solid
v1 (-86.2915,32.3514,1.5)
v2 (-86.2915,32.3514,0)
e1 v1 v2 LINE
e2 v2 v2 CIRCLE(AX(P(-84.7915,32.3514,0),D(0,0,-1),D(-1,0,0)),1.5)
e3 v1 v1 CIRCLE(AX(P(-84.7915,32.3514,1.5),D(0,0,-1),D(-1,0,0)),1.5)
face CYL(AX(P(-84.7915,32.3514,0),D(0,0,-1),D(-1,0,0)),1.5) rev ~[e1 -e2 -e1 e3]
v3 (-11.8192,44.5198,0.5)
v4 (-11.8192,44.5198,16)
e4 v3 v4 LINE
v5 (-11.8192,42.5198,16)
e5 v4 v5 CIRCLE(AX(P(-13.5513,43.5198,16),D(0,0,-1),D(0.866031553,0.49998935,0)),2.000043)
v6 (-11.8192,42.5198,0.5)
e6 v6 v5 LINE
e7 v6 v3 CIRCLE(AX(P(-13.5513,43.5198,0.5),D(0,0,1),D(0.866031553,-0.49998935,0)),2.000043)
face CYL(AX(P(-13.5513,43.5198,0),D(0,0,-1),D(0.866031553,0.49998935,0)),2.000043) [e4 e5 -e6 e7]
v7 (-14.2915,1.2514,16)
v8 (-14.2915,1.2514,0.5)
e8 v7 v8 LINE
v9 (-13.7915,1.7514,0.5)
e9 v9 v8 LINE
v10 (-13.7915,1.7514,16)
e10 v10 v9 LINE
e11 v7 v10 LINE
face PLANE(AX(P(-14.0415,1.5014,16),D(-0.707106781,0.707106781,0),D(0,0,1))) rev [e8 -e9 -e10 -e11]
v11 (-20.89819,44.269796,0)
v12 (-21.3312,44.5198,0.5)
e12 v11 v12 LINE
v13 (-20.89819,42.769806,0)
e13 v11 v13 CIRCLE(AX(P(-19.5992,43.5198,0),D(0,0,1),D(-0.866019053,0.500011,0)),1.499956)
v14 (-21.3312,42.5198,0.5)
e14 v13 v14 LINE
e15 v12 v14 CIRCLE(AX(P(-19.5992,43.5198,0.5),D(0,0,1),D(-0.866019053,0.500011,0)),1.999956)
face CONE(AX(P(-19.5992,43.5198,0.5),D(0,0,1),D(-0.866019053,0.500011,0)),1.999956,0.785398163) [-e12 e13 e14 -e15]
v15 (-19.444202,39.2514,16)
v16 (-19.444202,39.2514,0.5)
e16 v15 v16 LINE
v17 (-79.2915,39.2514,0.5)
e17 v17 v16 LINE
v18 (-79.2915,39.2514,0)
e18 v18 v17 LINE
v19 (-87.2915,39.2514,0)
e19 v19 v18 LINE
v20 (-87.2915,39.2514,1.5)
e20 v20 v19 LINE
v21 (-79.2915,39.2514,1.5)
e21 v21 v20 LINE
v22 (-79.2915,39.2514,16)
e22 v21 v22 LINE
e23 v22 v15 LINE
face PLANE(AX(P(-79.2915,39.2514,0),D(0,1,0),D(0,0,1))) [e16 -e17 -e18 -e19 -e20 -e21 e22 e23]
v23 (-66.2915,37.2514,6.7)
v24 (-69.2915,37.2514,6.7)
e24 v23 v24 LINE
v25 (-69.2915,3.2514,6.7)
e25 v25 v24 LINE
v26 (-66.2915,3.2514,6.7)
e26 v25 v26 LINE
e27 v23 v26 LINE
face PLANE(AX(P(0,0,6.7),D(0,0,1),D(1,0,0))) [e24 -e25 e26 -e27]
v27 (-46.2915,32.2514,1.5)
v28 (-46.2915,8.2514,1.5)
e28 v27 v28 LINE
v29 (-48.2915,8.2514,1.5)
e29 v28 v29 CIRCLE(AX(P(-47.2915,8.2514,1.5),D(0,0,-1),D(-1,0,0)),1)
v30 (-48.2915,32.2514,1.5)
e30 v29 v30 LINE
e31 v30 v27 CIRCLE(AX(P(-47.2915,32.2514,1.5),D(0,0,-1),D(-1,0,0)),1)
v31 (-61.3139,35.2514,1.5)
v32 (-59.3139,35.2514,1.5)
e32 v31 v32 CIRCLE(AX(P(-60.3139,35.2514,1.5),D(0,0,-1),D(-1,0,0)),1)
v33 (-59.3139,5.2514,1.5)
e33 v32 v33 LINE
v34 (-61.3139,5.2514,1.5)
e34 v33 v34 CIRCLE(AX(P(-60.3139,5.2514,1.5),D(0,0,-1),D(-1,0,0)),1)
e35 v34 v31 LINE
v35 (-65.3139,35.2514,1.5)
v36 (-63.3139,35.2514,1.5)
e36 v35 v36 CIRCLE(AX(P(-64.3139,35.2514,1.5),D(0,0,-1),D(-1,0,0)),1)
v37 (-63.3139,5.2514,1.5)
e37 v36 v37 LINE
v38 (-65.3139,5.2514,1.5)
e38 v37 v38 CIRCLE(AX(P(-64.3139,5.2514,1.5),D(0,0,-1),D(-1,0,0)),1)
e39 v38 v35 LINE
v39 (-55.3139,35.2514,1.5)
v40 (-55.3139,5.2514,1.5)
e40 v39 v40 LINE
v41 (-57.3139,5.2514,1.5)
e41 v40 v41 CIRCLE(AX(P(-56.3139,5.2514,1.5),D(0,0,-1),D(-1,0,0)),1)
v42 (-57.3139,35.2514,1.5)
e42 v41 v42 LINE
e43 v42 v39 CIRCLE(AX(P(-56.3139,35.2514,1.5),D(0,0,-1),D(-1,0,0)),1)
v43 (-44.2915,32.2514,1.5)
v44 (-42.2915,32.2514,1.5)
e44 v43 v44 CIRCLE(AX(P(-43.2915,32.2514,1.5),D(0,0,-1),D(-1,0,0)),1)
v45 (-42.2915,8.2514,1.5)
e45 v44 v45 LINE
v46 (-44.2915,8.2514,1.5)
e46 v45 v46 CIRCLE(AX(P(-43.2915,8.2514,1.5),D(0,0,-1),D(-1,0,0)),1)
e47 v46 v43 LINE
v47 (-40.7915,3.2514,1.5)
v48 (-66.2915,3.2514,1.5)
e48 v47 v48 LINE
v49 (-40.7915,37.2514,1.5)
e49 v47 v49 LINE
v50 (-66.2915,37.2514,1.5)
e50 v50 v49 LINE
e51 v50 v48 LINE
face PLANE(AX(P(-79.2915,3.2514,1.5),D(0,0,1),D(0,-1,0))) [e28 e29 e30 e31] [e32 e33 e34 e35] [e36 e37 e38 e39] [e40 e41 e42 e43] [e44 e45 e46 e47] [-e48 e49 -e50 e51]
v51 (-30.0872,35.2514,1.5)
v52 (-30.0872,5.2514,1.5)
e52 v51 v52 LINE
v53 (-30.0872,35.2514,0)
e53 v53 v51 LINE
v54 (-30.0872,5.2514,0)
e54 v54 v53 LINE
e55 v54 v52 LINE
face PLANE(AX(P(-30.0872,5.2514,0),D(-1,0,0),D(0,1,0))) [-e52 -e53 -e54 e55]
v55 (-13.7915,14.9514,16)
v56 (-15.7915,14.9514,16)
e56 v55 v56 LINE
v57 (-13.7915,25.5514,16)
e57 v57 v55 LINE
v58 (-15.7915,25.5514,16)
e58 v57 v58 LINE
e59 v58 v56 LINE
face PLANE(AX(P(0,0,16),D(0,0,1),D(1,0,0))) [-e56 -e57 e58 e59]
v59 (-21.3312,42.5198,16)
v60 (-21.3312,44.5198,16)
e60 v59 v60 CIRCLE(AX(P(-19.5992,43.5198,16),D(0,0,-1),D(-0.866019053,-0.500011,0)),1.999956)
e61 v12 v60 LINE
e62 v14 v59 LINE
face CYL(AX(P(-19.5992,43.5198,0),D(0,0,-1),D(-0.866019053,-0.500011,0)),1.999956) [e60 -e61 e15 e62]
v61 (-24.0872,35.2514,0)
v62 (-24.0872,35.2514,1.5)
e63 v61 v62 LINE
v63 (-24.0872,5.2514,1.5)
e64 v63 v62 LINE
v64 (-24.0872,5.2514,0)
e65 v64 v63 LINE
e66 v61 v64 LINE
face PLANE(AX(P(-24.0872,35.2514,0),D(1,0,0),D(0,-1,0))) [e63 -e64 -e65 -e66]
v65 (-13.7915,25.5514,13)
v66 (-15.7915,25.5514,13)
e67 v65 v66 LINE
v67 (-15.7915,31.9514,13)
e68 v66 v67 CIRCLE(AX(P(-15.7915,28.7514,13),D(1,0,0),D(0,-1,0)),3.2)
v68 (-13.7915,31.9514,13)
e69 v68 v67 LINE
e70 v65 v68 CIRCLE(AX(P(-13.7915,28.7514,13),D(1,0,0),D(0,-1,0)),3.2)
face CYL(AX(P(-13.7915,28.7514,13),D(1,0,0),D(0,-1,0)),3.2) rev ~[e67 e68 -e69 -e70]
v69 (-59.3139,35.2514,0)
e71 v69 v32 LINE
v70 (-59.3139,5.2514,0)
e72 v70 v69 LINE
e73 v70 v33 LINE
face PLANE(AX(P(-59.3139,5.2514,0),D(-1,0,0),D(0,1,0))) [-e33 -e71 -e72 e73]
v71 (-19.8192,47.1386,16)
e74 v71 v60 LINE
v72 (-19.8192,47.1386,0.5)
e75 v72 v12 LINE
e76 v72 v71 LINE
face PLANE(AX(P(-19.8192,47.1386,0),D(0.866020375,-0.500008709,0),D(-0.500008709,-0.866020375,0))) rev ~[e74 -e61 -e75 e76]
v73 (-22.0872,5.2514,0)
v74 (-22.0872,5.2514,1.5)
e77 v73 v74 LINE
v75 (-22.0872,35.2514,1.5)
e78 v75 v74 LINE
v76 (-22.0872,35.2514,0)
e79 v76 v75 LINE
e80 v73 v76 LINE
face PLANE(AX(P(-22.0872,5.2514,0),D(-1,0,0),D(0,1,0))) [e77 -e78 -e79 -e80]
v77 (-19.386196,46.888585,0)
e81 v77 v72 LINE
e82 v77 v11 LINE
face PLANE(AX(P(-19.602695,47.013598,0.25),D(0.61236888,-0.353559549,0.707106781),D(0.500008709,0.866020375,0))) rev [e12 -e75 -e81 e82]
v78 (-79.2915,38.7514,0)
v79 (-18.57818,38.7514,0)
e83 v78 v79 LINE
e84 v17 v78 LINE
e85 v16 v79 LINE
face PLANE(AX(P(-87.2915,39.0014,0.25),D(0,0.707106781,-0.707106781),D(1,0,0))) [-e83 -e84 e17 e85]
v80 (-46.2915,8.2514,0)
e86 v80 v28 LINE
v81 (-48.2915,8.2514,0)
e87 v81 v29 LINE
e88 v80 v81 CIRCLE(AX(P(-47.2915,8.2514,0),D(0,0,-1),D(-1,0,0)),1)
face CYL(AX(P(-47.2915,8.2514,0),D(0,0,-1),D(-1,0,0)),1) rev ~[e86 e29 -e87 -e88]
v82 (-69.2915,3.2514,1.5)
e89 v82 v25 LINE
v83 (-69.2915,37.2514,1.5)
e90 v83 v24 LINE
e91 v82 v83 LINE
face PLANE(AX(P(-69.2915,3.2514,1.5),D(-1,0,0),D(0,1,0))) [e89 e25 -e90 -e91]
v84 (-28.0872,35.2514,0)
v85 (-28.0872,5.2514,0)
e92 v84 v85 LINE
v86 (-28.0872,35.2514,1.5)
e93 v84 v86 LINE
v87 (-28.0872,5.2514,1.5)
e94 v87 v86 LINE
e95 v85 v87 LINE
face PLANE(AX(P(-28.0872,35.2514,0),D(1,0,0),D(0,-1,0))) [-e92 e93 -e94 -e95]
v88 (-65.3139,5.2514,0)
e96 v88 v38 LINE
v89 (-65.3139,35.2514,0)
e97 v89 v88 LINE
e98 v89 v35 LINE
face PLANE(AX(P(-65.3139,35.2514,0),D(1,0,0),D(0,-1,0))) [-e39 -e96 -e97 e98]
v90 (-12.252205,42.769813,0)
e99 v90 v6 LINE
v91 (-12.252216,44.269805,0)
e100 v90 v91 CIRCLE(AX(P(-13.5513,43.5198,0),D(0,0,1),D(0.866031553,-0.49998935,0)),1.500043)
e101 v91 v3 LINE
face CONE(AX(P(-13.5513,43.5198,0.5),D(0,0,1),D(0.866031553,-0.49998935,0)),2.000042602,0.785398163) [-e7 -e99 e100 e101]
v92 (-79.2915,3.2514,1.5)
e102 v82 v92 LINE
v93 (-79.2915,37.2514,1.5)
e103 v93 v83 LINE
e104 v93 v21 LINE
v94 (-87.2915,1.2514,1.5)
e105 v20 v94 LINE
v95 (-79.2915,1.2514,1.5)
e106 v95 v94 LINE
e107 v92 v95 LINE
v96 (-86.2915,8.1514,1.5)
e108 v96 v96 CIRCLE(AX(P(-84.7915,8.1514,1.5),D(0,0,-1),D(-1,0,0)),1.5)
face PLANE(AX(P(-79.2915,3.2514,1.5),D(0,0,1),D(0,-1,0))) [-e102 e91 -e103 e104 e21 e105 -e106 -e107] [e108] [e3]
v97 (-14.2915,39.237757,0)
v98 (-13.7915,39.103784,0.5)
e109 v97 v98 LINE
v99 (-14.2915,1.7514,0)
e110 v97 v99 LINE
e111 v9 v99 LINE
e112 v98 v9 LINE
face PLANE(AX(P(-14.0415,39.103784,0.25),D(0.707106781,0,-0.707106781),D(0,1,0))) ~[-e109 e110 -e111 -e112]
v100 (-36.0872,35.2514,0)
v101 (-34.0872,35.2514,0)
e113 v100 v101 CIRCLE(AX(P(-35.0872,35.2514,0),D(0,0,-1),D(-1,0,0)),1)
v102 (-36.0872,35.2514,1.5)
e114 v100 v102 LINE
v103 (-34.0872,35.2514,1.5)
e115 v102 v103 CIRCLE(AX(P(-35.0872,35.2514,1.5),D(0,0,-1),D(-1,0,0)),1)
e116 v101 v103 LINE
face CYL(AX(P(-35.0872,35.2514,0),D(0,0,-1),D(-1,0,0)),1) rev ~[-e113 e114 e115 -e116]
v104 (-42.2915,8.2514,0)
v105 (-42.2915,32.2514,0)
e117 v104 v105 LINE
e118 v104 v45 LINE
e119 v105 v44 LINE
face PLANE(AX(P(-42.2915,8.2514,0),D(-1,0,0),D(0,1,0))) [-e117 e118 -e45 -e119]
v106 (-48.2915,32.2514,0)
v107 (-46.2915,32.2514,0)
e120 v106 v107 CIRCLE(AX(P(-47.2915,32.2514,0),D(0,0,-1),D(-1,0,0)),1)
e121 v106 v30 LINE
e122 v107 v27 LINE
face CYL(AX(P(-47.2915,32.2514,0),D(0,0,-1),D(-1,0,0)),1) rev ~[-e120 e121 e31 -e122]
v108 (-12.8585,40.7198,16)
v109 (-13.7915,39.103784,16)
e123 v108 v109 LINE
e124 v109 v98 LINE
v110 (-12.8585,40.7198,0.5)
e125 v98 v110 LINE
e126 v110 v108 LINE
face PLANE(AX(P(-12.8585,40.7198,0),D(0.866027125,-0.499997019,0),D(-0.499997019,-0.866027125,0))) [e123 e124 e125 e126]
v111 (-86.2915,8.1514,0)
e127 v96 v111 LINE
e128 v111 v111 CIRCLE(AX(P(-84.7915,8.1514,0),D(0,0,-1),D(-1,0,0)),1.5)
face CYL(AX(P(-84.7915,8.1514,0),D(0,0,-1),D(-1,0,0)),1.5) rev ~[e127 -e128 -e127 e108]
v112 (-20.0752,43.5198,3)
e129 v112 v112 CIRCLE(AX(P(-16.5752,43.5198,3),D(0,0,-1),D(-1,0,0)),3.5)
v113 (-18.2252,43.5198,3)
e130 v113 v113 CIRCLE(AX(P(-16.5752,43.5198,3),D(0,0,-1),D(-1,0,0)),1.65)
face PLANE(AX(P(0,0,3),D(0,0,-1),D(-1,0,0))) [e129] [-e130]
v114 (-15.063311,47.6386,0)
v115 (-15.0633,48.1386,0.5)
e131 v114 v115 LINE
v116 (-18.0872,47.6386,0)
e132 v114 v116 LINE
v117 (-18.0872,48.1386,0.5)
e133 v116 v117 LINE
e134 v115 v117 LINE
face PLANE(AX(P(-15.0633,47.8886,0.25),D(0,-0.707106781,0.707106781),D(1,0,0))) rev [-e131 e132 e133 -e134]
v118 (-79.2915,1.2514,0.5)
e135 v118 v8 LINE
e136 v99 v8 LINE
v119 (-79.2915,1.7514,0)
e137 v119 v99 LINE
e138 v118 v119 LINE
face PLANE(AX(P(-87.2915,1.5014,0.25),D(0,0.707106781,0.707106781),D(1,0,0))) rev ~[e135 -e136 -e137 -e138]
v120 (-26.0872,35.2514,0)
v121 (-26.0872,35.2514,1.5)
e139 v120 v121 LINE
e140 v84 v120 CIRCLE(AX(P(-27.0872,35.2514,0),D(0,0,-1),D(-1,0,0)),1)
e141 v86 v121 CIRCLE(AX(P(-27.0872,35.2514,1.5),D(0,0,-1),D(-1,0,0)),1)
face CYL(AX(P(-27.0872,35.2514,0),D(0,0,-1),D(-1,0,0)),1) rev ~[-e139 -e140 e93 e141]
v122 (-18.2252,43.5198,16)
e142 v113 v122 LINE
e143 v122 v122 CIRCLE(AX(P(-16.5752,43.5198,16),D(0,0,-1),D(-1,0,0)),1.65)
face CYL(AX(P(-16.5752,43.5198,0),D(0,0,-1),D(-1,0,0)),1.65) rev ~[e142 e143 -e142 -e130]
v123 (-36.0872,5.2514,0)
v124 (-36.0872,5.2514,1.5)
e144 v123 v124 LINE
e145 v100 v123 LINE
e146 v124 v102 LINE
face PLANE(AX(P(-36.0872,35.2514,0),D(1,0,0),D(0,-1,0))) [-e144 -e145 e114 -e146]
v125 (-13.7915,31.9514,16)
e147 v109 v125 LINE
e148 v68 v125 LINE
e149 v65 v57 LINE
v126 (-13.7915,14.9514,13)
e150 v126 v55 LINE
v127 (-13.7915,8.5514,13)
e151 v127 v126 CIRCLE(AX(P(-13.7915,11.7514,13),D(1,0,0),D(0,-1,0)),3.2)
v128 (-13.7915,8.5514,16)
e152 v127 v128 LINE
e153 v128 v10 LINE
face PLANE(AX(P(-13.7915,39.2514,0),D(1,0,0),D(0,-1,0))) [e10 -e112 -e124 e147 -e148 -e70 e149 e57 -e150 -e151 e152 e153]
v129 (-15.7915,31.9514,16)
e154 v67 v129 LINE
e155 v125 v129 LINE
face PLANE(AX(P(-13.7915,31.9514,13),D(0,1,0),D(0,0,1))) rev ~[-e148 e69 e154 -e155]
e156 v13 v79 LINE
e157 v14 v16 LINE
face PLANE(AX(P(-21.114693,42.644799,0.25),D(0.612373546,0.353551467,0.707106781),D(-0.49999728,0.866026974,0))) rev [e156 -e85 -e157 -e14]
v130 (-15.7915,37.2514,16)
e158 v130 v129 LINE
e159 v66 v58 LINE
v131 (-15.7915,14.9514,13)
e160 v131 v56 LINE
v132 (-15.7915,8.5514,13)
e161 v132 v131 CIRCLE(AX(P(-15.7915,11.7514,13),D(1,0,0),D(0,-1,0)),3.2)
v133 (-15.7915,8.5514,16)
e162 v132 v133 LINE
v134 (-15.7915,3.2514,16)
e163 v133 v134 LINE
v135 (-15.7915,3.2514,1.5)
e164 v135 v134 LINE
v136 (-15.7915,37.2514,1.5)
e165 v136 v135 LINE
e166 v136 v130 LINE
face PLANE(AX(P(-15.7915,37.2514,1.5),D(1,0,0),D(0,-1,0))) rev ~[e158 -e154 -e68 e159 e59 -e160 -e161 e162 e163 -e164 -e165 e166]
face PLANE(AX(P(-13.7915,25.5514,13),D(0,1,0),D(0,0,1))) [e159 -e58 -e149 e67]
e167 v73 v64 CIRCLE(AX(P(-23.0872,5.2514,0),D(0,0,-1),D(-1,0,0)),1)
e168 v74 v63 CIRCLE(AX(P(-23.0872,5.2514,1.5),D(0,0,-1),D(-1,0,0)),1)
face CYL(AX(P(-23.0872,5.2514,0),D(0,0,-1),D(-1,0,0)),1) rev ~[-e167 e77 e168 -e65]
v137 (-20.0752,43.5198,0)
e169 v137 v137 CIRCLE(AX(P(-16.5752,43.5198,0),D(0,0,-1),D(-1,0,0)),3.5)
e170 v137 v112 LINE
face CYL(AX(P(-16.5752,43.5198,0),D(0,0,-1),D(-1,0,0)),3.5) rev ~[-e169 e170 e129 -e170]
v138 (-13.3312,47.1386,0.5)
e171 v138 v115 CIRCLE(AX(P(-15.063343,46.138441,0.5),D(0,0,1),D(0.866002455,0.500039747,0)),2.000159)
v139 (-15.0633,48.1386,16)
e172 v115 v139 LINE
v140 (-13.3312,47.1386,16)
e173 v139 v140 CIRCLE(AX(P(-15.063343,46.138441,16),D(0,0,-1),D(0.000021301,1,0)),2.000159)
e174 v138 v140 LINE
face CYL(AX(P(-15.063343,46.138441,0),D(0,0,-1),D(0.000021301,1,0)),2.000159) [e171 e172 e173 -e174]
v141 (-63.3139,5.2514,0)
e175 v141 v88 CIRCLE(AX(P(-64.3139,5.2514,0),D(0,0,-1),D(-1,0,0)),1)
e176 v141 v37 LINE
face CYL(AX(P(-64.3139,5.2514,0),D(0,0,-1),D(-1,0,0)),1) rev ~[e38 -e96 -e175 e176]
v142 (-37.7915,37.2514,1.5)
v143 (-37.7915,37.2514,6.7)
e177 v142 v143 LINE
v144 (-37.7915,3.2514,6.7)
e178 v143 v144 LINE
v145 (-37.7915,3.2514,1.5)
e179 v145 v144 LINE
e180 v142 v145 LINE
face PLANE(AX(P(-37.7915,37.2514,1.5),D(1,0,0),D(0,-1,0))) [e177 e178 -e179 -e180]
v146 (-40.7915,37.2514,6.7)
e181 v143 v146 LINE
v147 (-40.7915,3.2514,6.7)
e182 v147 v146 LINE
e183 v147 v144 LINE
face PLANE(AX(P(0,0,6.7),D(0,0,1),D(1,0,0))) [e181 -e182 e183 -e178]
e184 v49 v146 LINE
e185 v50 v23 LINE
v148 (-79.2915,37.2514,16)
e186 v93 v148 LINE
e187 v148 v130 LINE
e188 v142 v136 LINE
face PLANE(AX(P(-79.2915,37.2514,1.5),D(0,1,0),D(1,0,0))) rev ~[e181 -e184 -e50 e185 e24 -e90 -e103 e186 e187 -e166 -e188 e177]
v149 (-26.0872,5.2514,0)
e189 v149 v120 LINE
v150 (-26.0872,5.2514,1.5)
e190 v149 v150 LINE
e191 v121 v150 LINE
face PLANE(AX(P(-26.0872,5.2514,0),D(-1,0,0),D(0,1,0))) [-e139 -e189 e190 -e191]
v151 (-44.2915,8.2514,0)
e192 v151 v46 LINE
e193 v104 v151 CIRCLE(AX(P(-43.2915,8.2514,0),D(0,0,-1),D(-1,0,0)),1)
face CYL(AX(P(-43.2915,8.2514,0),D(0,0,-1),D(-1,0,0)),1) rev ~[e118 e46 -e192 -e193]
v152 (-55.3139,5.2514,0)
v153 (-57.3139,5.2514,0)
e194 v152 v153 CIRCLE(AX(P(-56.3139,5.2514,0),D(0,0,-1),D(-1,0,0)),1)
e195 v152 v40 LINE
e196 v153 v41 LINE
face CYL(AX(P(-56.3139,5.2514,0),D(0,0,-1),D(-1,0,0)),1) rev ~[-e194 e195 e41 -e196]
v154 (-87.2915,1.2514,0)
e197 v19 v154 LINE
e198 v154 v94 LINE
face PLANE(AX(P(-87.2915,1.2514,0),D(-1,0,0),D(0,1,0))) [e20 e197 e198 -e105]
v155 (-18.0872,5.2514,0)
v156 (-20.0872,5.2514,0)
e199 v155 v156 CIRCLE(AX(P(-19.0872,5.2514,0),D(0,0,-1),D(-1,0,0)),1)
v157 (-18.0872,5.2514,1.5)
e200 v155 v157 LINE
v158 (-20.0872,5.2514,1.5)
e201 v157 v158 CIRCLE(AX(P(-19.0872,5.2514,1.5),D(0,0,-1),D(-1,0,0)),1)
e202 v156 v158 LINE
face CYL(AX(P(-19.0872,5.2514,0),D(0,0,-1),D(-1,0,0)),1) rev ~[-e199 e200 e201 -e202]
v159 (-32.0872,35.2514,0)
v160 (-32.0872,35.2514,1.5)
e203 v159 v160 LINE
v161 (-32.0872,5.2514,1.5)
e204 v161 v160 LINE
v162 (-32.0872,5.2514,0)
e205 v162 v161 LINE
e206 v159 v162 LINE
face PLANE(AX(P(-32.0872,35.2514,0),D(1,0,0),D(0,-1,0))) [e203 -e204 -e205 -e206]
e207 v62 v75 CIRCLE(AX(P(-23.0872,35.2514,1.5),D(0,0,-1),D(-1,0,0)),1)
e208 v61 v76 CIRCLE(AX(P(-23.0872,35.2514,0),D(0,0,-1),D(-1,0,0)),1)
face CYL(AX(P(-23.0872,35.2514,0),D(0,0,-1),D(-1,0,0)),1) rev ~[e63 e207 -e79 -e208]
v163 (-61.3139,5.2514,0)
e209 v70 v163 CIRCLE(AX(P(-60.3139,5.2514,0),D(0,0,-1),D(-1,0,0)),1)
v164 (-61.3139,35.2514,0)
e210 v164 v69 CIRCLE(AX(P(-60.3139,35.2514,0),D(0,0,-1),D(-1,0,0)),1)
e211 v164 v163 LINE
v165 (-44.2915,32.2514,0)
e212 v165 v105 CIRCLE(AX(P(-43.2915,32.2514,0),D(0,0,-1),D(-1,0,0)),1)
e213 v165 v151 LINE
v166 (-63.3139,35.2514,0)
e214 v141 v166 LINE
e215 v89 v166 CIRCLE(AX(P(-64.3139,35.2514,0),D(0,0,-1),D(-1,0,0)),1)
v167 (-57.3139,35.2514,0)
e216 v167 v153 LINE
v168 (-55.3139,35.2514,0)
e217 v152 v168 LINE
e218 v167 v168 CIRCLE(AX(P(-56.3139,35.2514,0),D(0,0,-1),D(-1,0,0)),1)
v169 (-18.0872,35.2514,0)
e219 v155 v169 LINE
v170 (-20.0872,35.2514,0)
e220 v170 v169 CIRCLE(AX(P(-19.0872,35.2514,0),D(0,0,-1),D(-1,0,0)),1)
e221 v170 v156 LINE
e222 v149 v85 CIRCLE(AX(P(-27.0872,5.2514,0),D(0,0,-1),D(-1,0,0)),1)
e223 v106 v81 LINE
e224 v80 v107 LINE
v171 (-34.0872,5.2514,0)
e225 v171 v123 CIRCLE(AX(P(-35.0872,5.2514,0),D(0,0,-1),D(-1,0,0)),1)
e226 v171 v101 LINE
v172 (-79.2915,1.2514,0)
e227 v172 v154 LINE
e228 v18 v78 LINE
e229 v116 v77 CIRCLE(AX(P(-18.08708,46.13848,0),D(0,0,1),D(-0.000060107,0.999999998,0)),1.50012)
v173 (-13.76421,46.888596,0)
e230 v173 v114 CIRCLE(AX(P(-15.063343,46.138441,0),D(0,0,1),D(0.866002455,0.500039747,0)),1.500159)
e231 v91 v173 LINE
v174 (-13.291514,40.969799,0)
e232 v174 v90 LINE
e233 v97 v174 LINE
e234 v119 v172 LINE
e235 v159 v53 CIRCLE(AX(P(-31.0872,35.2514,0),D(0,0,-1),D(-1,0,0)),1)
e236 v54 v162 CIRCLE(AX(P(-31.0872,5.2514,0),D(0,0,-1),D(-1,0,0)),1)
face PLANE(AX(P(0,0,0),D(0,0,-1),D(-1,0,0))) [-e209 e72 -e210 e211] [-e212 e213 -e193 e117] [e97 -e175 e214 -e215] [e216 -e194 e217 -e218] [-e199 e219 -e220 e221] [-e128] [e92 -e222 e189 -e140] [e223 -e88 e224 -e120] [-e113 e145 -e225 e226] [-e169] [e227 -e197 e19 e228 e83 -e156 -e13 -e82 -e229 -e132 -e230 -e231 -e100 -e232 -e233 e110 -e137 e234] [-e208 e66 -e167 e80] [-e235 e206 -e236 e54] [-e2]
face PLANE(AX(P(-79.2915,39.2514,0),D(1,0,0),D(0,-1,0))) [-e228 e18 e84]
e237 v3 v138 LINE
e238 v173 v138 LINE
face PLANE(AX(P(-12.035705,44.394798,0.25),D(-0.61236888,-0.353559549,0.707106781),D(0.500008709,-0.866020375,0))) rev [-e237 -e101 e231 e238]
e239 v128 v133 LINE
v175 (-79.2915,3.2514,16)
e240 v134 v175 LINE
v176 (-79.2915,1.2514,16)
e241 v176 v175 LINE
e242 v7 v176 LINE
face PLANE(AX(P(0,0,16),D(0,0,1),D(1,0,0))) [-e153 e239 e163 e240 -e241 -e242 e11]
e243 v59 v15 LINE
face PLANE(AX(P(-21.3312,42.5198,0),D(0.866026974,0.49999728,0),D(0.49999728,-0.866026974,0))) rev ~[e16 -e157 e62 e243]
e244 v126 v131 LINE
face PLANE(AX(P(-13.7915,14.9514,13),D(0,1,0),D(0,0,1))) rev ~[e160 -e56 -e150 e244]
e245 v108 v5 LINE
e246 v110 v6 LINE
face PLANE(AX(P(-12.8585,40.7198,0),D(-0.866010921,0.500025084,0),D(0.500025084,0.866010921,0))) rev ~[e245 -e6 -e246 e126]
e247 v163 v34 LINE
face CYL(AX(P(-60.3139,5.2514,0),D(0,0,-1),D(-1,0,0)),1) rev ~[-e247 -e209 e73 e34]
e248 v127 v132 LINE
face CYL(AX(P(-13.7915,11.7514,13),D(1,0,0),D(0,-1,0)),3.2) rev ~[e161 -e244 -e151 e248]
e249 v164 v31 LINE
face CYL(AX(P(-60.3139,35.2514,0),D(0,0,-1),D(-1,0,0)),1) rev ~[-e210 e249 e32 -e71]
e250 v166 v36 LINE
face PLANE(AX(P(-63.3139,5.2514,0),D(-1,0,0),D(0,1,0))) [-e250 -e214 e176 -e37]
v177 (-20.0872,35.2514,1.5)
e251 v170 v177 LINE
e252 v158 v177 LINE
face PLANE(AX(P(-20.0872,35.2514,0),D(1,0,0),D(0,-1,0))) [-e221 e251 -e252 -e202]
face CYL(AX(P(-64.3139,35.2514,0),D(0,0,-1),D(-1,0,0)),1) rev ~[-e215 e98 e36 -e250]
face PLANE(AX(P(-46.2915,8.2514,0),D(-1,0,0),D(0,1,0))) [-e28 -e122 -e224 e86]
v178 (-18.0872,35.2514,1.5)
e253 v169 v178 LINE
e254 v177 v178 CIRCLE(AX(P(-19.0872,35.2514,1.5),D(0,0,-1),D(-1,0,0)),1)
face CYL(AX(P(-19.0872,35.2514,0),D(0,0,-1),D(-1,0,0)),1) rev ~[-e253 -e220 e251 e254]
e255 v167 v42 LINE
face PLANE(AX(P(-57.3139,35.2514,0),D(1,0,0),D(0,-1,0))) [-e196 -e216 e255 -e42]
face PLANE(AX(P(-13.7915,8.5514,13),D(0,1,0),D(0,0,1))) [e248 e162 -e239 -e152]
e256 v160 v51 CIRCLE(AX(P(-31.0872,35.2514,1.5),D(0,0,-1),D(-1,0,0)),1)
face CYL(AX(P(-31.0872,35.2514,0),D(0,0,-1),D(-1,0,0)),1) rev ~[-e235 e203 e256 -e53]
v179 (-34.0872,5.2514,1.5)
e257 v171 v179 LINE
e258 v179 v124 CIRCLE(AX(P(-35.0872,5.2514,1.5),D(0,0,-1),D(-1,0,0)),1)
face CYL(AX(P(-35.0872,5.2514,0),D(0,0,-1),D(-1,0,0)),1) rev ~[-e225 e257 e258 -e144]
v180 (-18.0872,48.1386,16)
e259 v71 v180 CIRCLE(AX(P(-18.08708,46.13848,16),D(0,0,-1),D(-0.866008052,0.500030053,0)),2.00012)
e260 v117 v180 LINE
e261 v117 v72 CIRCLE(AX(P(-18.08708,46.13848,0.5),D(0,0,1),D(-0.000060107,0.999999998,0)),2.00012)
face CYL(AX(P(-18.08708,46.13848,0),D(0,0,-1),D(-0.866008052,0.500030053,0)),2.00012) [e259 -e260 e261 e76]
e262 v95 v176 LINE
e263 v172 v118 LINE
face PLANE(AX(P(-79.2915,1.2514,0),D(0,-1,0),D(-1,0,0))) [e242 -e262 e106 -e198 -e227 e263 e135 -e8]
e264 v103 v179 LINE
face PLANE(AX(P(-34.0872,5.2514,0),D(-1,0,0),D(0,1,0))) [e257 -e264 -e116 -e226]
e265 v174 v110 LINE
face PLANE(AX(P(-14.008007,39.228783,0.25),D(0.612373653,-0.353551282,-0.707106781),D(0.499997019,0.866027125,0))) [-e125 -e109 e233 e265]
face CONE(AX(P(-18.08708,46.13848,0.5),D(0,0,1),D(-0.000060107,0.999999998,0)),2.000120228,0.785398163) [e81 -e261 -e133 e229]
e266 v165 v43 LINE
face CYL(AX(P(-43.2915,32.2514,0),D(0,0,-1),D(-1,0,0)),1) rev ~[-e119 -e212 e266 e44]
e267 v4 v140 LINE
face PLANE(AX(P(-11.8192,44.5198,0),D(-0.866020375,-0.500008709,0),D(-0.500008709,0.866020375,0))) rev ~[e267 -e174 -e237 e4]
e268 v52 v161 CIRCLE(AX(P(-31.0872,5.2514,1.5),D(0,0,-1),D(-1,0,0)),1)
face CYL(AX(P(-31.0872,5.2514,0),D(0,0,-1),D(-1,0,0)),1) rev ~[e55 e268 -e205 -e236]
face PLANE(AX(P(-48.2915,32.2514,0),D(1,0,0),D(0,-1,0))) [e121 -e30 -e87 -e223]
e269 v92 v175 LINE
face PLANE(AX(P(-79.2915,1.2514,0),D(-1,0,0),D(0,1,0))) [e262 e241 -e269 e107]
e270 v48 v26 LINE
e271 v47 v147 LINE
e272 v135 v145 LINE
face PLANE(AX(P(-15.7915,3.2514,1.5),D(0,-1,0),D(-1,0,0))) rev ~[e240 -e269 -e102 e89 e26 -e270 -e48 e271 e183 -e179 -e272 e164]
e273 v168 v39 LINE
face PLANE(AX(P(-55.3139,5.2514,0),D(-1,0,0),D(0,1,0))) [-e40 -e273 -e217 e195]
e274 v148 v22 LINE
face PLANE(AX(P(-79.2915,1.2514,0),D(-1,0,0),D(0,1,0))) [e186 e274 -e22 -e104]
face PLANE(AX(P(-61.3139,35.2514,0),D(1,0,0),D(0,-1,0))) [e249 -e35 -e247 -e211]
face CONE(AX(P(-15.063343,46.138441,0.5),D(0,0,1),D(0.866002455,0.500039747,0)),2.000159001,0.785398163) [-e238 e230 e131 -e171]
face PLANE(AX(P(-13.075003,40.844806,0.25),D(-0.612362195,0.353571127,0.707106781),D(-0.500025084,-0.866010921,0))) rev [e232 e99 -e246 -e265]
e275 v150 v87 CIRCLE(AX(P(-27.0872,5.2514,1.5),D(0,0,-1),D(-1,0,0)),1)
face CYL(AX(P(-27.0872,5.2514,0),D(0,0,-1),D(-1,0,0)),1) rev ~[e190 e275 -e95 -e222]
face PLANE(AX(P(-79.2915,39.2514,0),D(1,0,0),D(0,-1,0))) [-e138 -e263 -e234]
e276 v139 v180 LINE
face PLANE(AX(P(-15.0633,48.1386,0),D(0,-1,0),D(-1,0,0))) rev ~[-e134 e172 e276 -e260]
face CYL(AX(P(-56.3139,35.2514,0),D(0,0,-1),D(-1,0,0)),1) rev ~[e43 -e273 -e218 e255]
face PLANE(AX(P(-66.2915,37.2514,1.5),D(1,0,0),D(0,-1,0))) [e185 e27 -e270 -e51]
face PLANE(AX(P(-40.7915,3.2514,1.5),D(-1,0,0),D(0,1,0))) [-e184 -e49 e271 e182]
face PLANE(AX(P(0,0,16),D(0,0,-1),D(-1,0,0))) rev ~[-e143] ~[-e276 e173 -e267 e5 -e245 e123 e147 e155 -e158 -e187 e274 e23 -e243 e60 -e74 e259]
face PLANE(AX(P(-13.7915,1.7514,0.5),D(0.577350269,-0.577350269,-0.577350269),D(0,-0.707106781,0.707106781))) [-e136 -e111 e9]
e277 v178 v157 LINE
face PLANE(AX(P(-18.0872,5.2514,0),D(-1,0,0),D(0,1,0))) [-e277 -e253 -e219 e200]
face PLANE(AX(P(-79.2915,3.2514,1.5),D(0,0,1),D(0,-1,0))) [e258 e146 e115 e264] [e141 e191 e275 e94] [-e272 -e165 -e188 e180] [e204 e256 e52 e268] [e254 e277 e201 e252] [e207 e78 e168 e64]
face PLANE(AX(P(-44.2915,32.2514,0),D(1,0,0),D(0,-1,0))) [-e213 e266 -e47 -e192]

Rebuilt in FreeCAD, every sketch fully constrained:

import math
import FreeCAD as App
import Part
import Sketcher

V = App.Vector
Q = App.Units.Quantity


def edges_at(feature, points):
    """Names of the edges that pass closest to the given points."""
    edges = feature.Shape.Edges
    near = lambda p: min(range(len(edges)), key=lambda i: edges[i].distToShape(Part.Vertex(*p))[0])
    return sorted({f"Edge{near(p) + 1}" for p in points})


def add_polygon(sketch, points):
    """Adds a closed chain of lines whose ends are joined by coincident constraints."""
    first, n = sketch.GeometryCount, len(points)
    for a, b in zip(points, points[1:] + points[:1]):
        sketch.addGeometry(Part.LineSegment(App.Vector(*a, 0), App.Vector(*b, 0)), False)
    for i in range(n):
        sketch.addConstraint(Sketcher.Constraint("Coincident", first + i, 2, first + (i + 1) % n, 1))

doc = App.newDocument("Part")
body = doc.addObject("PartDesign::Body", "Body")

# Sketch on XY plane
sketch1 = doc.addObject("Sketcher::SketchObject", "Sketch")
body.addObject(sketch1)
sketch1.AttachmentSupport = (doc.XY_Plane, [""])
sketch1.MapMode = "FlatFace"
add_polygon(sketch1, [(-13.7915, 39.2514), (-79.2915, 39.2514), (-79.2915, 1.2514), (-13.7915, 1.2514)])  # lines 0-3
sketch1.addConstraint([
    Sketcher.Constraint("Horizontal", 0),
    Sketcher.Constraint("Vertical", 1),
    Sketcher.Constraint("Horizontal", 2),
    Sketcher.Constraint("Vertical", 3),
    Sketcher.Constraint("DistanceY", 1, 2, 1, 1, 38.0),
    Sketcher.Constraint("DistanceX", 0, 2, 0, 1, 65.5),
    Sketcher.Constraint("DistanceX", 0, 2, -1, 1, 79.2915),
    Sketcher.Constraint("DistanceY", -1, 1, 0, 2, 39.2514),
])
pad1 = doc.addObject("PartDesign::Pad", "Pad")
body.addObject(pad1)
pad1.Profile = sketch1
pad1.Length = 1.5

# Sketch on XY plane
sketch2 = doc.addObject("Sketcher::SketchObject", "Sketch001")
body.addObject(sketch2)
sketch2.AttachmentSupport = (doc.XY_Plane, [""])
sketch2.MapMode = "FlatFace"
sketch2.AttachmentOffset = App.Placement(V(0, 0, 1.5), App.Rotation())
add_polygon(sketch2, [(-13.7915, 1.2514), (-13.7915, 39.2514), (-79.2915, 39.2514), (-79.2915, 37.2514), (-15.7915, 37.2514), (-15.7915, 3.2514), (-79.2915, 3.2514), (-79.2915, 1.2514)])  # lines 0-7
sketch2.addConstraint([
    Sketcher.Constraint("Vertical", 0),
    Sketcher.Constraint("Horizontal", 1),
    Sketcher.Constraint("Vertical", 2),
    Sketcher.Constraint("Horizontal", 3),
    Sketcher.Constraint("Vertical", 4),
    Sketcher.Constraint("Horizontal", 5),
    Sketcher.Constraint("Vertical", 6),
    Sketcher.Constraint("Horizontal", 7),
    Sketcher.Constraint("Vertical", 2, 2, 5, 2),
    Sketcher.Constraint("Equal", 2, 6),
    Sketcher.Constraint("DistanceY", 2, 2, 2, 1, 2.0),
    Sketcher.Constraint("DistanceX", 3, 2, 0, 2, 2.0),
    Sketcher.Constraint("DistanceY", 0, 1, 0, 2, 38.0),
    Sketcher.Constraint("DistanceX", 1, 2, 1, 1, 65.5),
    Sketcher.Constraint("DistanceX", 0, 2, -1, 1, 13.7915),
    Sketcher.Constraint("DistanceY", -1, 1, 0, 2, 39.2514),
])
pad2 = doc.addObject("PartDesign::Pad", "Pad001")
body.addObject(pad2)
pad2.Profile = sketch2
pad2.Length = 14.5

# Sketch on YZ plane
sketch3 = doc.addObject("Sketcher::SketchObject", "Sketch002")
body.addObject(sketch3)
sketch3.AttachmentSupport = (doc.YZ_Plane, [""])
sketch3.MapMode = "FlatFace"
sketch3.AttachmentOffset = App.Placement(V(0, 0, -13.7915), App.Rotation())
sketch3.addGeometry([
    Part.LineSegment(V(14.9514, 16, 0), V(8.5514, 16, 0)),  # 0
    Part.LineSegment(V(8.5514, 16, 0), V(8.5514, 13, 0)),  # 1
    Part.ArcOfCircle(Part.Circle(V(11.7514, 13, 0), V(0, 0, 1), 3.2), math.radians(180), math.radians(360)),  # 2
    Part.LineSegment(V(14.9514, 13, 0), V(14.9514, 16, 0)),  # 3
    Part.LineSegment(V(31.9514, 13, 0), V(31.9514, 16, 0)),  # 4
    Part.LineSegment(V(31.9514, 16, 0), V(25.5514, 16, 0)),  # 5
    Part.LineSegment(V(25.5514, 16, 0), V(25.5514, 13, 0)),  # 6
    Part.ArcOfCircle(Part.Circle(V(28.7514, 13, 0), V(0, 0, 1), 3.2), math.radians(180), math.radians(360)),  # 7
], False)
sketch3.addConstraint([
    Sketcher.Constraint("Coincident", 0, 2, 1, 1),
    Sketcher.Constraint("Tangent", 1, 2, 2, 1),
    Sketcher.Constraint("Tangent", 2, 2, 3, 1),
    Sketcher.Constraint("Coincident", 3, 2, 0, 1),
    Sketcher.Constraint("Coincident", 4, 2, 5, 1),
    Sketcher.Constraint("Coincident", 5, 2, 6, 1),
    Sketcher.Constraint("Tangent", 6, 2, 7, 1),
    Sketcher.Constraint("Tangent", 7, 2, 4, 1),
    Sketcher.Constraint("Horizontal", 0),
    Sketcher.Constraint("Vertical", 1),
    Sketcher.Constraint("Vertical", 3),
    Sketcher.Constraint("Vertical", 4),
    Sketcher.Constraint("Horizontal", 5),
    Sketcher.Constraint("Vertical", 6),
    Sketcher.Constraint("Equal", 2, 7),
    Sketcher.Constraint("Horizontal", 2, 3, 7, 3),
    Sketcher.Constraint("Horizontal", 3, 2, 4, 2),
    Sketcher.Constraint("Radius", 2, 3.2),
    Sketcher.Constraint("DistanceY", -1, 1, 2, 3, 13.0),
    Sketcher.Constraint("DistanceY", 1, 2, 1, 1, 3.0),
    Sketcher.Constraint("DistanceX", 2, 3, 7, 3, 17.0),
    Sketcher.Constraint("DistanceX", -1, 1, 2, 3, 11.7514),
])
pocket1 = doc.addObject("PartDesign::Pocket", "Pocket")
body.addObject(pocket1)
pocket1.Profile = sketch3
pocket1.Length = 13

# Sketch on XY plane
sketch4 = doc.addObject("Sketcher::SketchObject", "Sketch003")
body.addObject(sketch4)
sketch4.AttachmentSupport = (doc.XY_Plane, [""])
sketch4.MapMode = "FlatFace"
sketch4.addGeometry([
    Part.LineSegment(V(-19.356682, 39.09981, 0), V(-21.3312, 42.5198, 0)),  # 0
    Part.ArcOfCircle(Part.Circle(V(-19.5992, 43.5198, 0), V(0, 0, 1), 1.999956), math.radians(149.999272), math.radians(210.000728)),  # 1
    Part.LineSegment(V(-21.3312, 44.5198, 0), V(-19.8192, 47.1386, 0)),  # 2
    Part.ArcOfCircle(Part.Circle(V(-18.0872, 46.1386, 0), V(0, 0, 1), 1.999956), math.radians(90), math.radians(149.999272)),  # 3
    Part.LineSegment(V(-18.0872, 48.1386, 0), V(-15.0633, 48.1386, 0)),  # 4
    Part.ArcOfCircle(Part.Circle(V(-15.0633, 46.1386, 0), V(0, 0, 1), 2), math.radians(29.999295), math.radians(90)),  # 5
    Part.LineSegment(V(-13.3312, 47.1386, 0), V(-11.8192, 44.5198, 0)),  # 6
    Part.ArcOfCircle(Part.Circle(V(-13.5513, 43.5198, 0), V(0, 0, 1), 2.000043), math.radians(-29.999295), math.radians(29.999295)),  # 7
    Part.LineSegment(V(-11.8192, 42.5198, 0), V(-12.8585, 40.7198, 0)),  # 8
    Part.LineSegment(V(-12.8585, 40.7198, 0), V(-13.7938, 39.0998, 0)),  # 9
    Part.LineSegment(V(-13.7938, 39.0998, 0), V(-19.3567, 39.0998, 0)),  # 10
    Part.Circle(V(-16.5752, 43.5198, 0), V(0, 0, 1), 1.65),  # 11
], False)
sketch4.addConstraint([
    Sketcher.Constraint("Tangent", 0, 2, 1, 2),
    Sketcher.Constraint("Tangent", 1, 1, 2, 1),
    Sketcher.Constraint("Tangent", 2, 2, 3, 2),
    Sketcher.Constraint("Tangent", 3, 1, 4, 1),
    Sketcher.Constraint("Tangent", 4, 2, 5, 2),
    Sketcher.Constraint("Tangent", 5, 1, 6, 1),
    Sketcher.Constraint("Tangent", 6, 2, 7, 2),
    Sketcher.Constraint("Tangent", 7, 1, 8, 1),
    Sketcher.Constraint("Coincident", 8, 2, 9, 1),
    Sketcher.Constraint("Coincident", 9, 2, 10, 1),
    Sketcher.Constraint("Coincident", 10, 2, 0, 1),
    Sketcher.Constraint("Horizontal", 4),
    Sketcher.Constraint("Horizontal", 10),
    Sketcher.Constraint("Equal", 1, 3),
    Sketcher.Constraint("Equal", 3, 5),
    Sketcher.Constraint("Equal", 5, 7),
    Sketcher.Constraint("Parallel", 0, 6),
    Sketcher.Constraint("Parallel", 2, 8),
    Sketcher.Constraint("Parallel", 8, 9),
    Sketcher.Constraint("Horizontal", 1, 3, 7, 3),
    Sketcher.Constraint("Horizontal", 7, 3, 11, 3),
    Sketcher.Constraint("Horizontal", 2, 2, 5, 1),
    Sketcher.Constraint("Radius", 1, 2.0),
    Sketcher.Constraint("Diameter", 11, 3.3),
    Sketcher.Constraint("Angle", 0, Q("119.9998 deg")),
    Sketcher.Constraint("DistanceY", 8, 2, 7, 1, 1.8),
    Sketcher.Constraint("DistanceX", 4, 1, 4, 2, 3.024),
    Sketcher.Constraint("DistanceX", 10, 2, 10, 1, 5.563),
    Sketcher.Constraint("DistanceX", 0, 2, 7, 3, 7.78),
    Sketcher.Constraint("DistanceX", 11, 3, 5, 3, 1.512),
    Sketcher.Constraint("DistanceX", 1, 3, -1, 1, 19.5992),
    Sketcher.Constraint("DistanceY", -1, 1, 1, 3, 43.5198),
])
pad3 = doc.addObject("PartDesign::Pad", "Pad002")
body.addObject(pad3)
pad3.Profile = sketch4
pad3.Length = 16

# Sketch on YZ plane
sketch5 = doc.addObject("Sketcher::SketchObject", "Sketch004")
body.addObject(sketch5)
sketch5.AttachmentSupport = (doc.YZ_Plane, [""])
sketch5.MapMode = "FlatFace"
sketch5.AttachmentOffset = App.Placement(V(0, 0, -79.2915), App.Rotation())
add_polygon(sketch5, [(1.2514, 1.5), (39.2514, 1.5), (39.2514, 0), (1.2514, 0)])  # lines 0-3
sketch5.addConstraint([
    Sketcher.Constraint("Horizontal", 0),
    Sketcher.Constraint("Vertical", 1),
    Sketcher.Constraint("Horizontal", 2),
    Sketcher.Constraint("Vertical", 3),
    Sketcher.Constraint("PointOnObject", 1, 2, -1),
    Sketcher.Constraint("DistanceX", 0, 1, 0, 2, 38.0),
    Sketcher.Constraint("DistanceY", 1, 2, 1, 1, 1.5),
    Sketcher.Constraint("DistanceX", -1, 1, 0, 2, 39.2514),
])
pad4 = doc.addObject("PartDesign::Pad", "Pad003")
body.addObject(pad4)
pad4.Profile = sketch5
pad4.Length = 8
pad4.Reversed = True

# Sketch on XY plane
sketch6 = doc.addObject("Sketcher::SketchObject", "Sketch005")
body.addObject(sketch6)
sketch6.AttachmentSupport = (doc.XY_Plane, [""])
sketch6.MapMode = "FlatFace"
sketch6.AttachmentOffset = App.Placement(V(0, 0, 1.5), App.Rotation())
add_polygon(sketch6, [(-37.7915, 3.2514), (-37.7915, 37.2514), (-40.7915, 37.2514), (-40.7915, 3.2514)])  # lines 0-3
add_polygon(sketch6, [(-66.2915, 3.2514), (-66.2915, 37.2514), (-69.2915, 37.2514), (-69.2915, 3.2514)])  # lines 4-7
sketch6.addConstraint([
    Sketcher.Constraint("Vertical", 0),
    Sketcher.Constraint("Horizontal", 1),
    Sketcher.Constraint("Vertical", 2),
    Sketcher.Constraint("Horizontal", 3),
    Sketcher.Constraint("Vertical", 4),
    Sketcher.Constraint("Horizontal", 5),
    Sketcher.Constraint("Vertical", 6),
    Sketcher.Constraint("Horizontal", 7),
    Sketcher.Constraint("Horizontal", 1, 2, 4, 2),
    Sketcher.Constraint("Horizontal", 3, 2, 6, 2),
    Sketcher.Constraint("Equal", 3, 5),
    Sketcher.Constraint("DistanceX", 1, 2, 1, 1, 3.0),
    Sketcher.Constraint("DistanceY", 0, 1, 0, 2, 34.0),
    Sketcher.Constraint("DistanceX", 4, 2, 1, 2, 25.5),
    Sketcher.Constraint("DistanceX", 0, 2, -1, 1, 37.7915),
    Sketcher.Constraint("DistanceY", -1, 1, 0, 2, 37.2514),
])
pad5 = doc.addObject("PartDesign::Pad", "Pad004")
body.addObject(pad5)
pad5.Profile = sketch6
pad5.Length = 5.2

# Sketch on XY plane
sketch7 = doc.addObject("Sketcher::SketchObject", "Sketch006")
body.addObject(sketch7)
sketch7.AttachmentSupport = (doc.XY_Plane, [""])
sketch7.MapMode = "FlatFace"
sketch7.addGeometry([
    Part.ArcOfCircle(Part.Circle(V(-19.0872, 35.2514, 0), V(0, 0, 1), 1), math.radians(0), math.radians(180)),
    Part.LineSegment(V(-18.0872, 35.2514, 0), V(-18.0872, 5.2514, 0)),
    Part.ArcOfCircle(Part.Circle(V(-19.0872, 5.2514, 0), V(0, 0, 1), 1), math.radians(180), math.radians(360)),
    Part.LineSegment(V(-20.0872, 5.2514, 0), V(-20.0872, 35.2514, 0)),
], False)
sketch7.addConstraint([
    Sketcher.Constraint("Tangent", 0, 1, 1, 1),
    Sketcher.Constraint("Tangent", 1, 2, 2, 2),
    Sketcher.Constraint("Tangent", 2, 1, 3, 1),
    Sketcher.Constraint("Tangent", 3, 2, 0, 2),
    Sketcher.Constraint("Vertical", 1),
    Sketcher.Constraint("Vertical", 3),
    Sketcher.Constraint("Radius", 0, 1.0),
    Sketcher.Constraint("DistanceY", 1, 2, 1, 1, 30.0),
    Sketcher.Constraint("DistanceX", 0, 3, -1, 1, 19.0872),
    Sketcher.Constraint("DistanceY", -1, 1, 0, 3, 35.2514),
])
pocket2 = doc.addObject("PartDesign::Pocket", "Pocket001")
body.addObject(pocket2)
pocket2.Profile = sketch7
pocket2.Length = 2
pocket2.Reversed = True
doc.recompute()

linearpattern = doc.addObject("PartDesign::LinearPattern", "LinearPattern")
body.addObject(linearpattern)
linearpattern.Originals = [pocket2]
linearpattern.Direction = (doc.X_Axis, [""])
linearpattern.Mode = "offset"
linearpattern.Offset = 4
linearpattern.Occurrences = 5
linearpattern.Reversed = True
body.Tip = linearpattern

# Sketch on XY plane
sketch8 = doc.addObject("Sketcher::SketchObject", "Sketch007")
body.addObject(sketch8)
sketch8.AttachmentSupport = (doc.XY_Plane, [""])
sketch8.MapMode = "FlatFace"
sketch8.addGeometry([
    Part.ArcOfCircle(Part.Circle(V(-43.2915, 32.2514, 0), V(0, 0, 1), 1), math.radians(0), math.radians(180)),
    Part.LineSegment(V(-42.2915, 32.2514, 0), V(-42.2915, 8.2514, 0)),
    Part.ArcOfCircle(Part.Circle(V(-43.2915, 8.2514, 0), V(0, 0, 1), 1), math.radians(180), math.radians(360)),
    Part.LineSegment(V(-44.2915, 8.2514, 0), V(-44.2915, 32.2514, 0)),
], False)
sketch8.addConstraint([
    Sketcher.Constraint("Tangent", 0, 1, 1, 1),
    Sketcher.Constraint("Tangent", 1, 2, 2, 2),
    Sketcher.Constraint("Tangent", 2, 1, 3, 1),
    Sketcher.Constraint("Tangent", 3, 2, 0, 2),
    Sketcher.Constraint("Vertical", 1),
    Sketcher.Constraint("Vertical", 3),
    Sketcher.Constraint("Radius", 0, 1.0),
    Sketcher.Constraint("DistanceY", 1, 2, 1, 1, 24.0),
    Sketcher.Constraint("DistanceX", 0, 3, -1, 1, 43.2915),
    Sketcher.Constraint("DistanceY", -1, 1, 0, 3, 32.2514),
])
pocket3 = doc.addObject("PartDesign::Pocket", "Pocket002")
body.addObject(pocket3)
pocket3.Profile = sketch8
pocket3.Length = 2
pocket3.Reversed = True
doc.recompute()

linearpattern2 = doc.addObject("PartDesign::LinearPattern", "LinearPattern001")
body.addObject(linearpattern2)
linearpattern2.Originals = [pocket3]
linearpattern2.Direction = (doc.X_Axis, [""])
linearpattern2.Mode = "offset"
linearpattern2.Offset = 4
linearpattern2.Occurrences = 2
linearpattern2.Reversed = True
body.Tip = linearpattern2

# Sketch on XY plane
sketch9 = doc.addObject("Sketcher::SketchObject", "Sketch008")
body.addObject(sketch9)
sketch9.AttachmentSupport = (doc.XY_Plane, [""])
sketch9.MapMode = "FlatFace"
sketch9.addGeometry([
    Part.ArcOfCircle(Part.Circle(V(-56.3139, 35.2514, 0), V(0, 0, 1), 1), math.radians(0), math.radians(180)),
    Part.LineSegment(V(-55.3139, 35.2514, 0), V(-55.3139, 5.2514, 0)),
    Part.ArcOfCircle(Part.Circle(V(-56.3139, 5.2514, 0), V(0, 0, 1), 1), math.radians(180), math.radians(360)),
    Part.LineSegment(V(-57.3139, 5.2514, 0), V(-57.3139, 35.2514, 0)),
], False)
sketch9.addConstraint([
    Sketcher.Constraint("Tangent", 0, 1, 1, 1),
    Sketcher.Constraint("Tangent", 1, 2, 2, 2),
    Sketcher.Constraint("Tangent", 2, 1, 3, 1),
    Sketcher.Constraint("Tangent", 3, 2, 0, 2),
    Sketcher.Constraint("Vertical", 1),
    Sketcher.Constraint("Vertical", 3),
    Sketcher.Constraint("DistanceY", 1, 2, 1, 1, 30.0),
    Sketcher.Constraint("Radius", 0, 1.0),
    Sketcher.Constraint("DistanceX", 0, 3, -1, 1, 56.314),
    Sketcher.Constraint("DistanceY", -1, 1, 0, 3, 35.2514),
])
pocket4 = doc.addObject("PartDesign::Pocket", "Pocket003")
body.addObject(pocket4)
pocket4.Profile = sketch9
pocket4.Length = 2
pocket4.Reversed = True
doc.recompute()

linearpattern3 = doc.addObject("PartDesign::LinearPattern", "LinearPattern002")
body.addObject(linearpattern3)
linearpattern3.Originals = [pocket4]
linearpattern3.Direction = (doc.X_Axis, [""])
linearpattern3.Mode = "offset"
linearpattern3.Offset = 4
linearpattern3.Occurrences = 3
linearpattern3.Reversed = True
body.Tip = linearpattern3

# Sketch on XY plane
sketch10 = doc.addObject("Sketcher::SketchObject", "Sketch009")
body.addObject(sketch10)
sketch10.AttachmentSupport = (doc.XY_Plane, [""])
sketch10.MapMode = "FlatFace"
sketch10.addGeometry([
    Part.Circle(V(-84.7915, 32.3514, 0), V(0, 0, 1), 1.5),
    Part.Circle(V(-84.7915, 8.1514, 0), V(0, 0, 1), 1.5),
], False)
sketch10.addConstraint([
    Sketcher.Constraint("Equal", 0, 1),
    Sketcher.Constraint("Vertical", 0, 3, 1, 3),
    Sketcher.Constraint("Diameter", 0, 3.0),
    Sketcher.Constraint("DistanceY", 1, 3, 0, 3, 24.2),
    Sketcher.Constraint("DistanceX", 0, 3, -1, 1, 84.7915),
    Sketcher.Constraint("DistanceY", -1, 1, 0, 3, 32.3514),
])
pocket5 = doc.addObject("PartDesign::Pocket", "Pocket004")
body.addObject(pocket5)
pocket5.Profile = sketch10
pocket5.Length = 10
pocket5.Reversed = True
doc.recompute()

chamfer = doc.addObject("PartDesign::Chamfer", "Chamfer")
body.addObject(chamfer)
chamfer.Base = (pocket5, edges_at(pocket5, [
    (-50.541, 1.251, 0),
    (-13.791, 20.178, 0),
    (-13.791, 1.251, 8),
    (-53.368, 39.251, 0),
    (-20.388, 40.886, 0),
    (-21.599, 43.52, 0),
    (-20.575, 45.829, 0),
    (-19.087, 47.871, 0),
    (-16.575, 48.139, 0),
    (-14.063, 47.871, 0),
    (-12.575, 45.829, 0),
    (-11.551, 43.52, 0),
    (-12.805, 40.812, 0),
]))
chamfer.Size = 0.5

# Sketch on XY plane
sketch11 = doc.addObject("Sketcher::SketchObject", "Sketch010")
body.addObject(sketch11)
sketch11.AttachmentSupport = (doc.XY_Plane, [""])
sketch11.MapMode = "FlatFace"
add_polygon(sketch11, [(-87.2915, 1.2514), (-87.2915, 39.2514), (-79.2915, 39.2514), (-79.2915, 1.2514)])  # lines 0-3
sketch11.addGeometry(Part.Circle(V(-84.7915, 8.1514, 0), V(0, 0, 1), 1.5), False)  # 4
sketch11.addGeometry(Part.Circle(V(-84.7915, 32.3514, 0), V(0, 0, 1), 1.5), False)  # 5
sketch11.addConstraint([
    Sketcher.Constraint("Vertical", 0),
    Sketcher.Constraint("Horizontal", 1),
    Sketcher.Constraint("Vertical", 2),
    Sketcher.Constraint("Horizontal", 3),
    Sketcher.Constraint("Equal", 4, 5),
    Sketcher.Constraint("Vertical", 4, 3, 5, 3),
    Sketcher.Constraint("DistanceX", 1, 1, 1, 2, 8.0),
    Sketcher.Constraint("DistanceY", 0, 1, 0, 2, 38.0),
    Sketcher.Constraint("Diameter", 4, 3.0),
    Sketcher.Constraint("DistanceY", 4, 3, 5, 3, 24.2),
    Sketcher.Constraint("DistanceX", 0, 2, 5, 3, 2.5),
    Sketcher.Constraint("DistanceY", 5, 3, 0, 2, 6.9),
    Sketcher.Constraint("DistanceX", 4, 3, -1, 1, 84.7915),
    Sketcher.Constraint("DistanceY", -1, 1, 4, 3, 8.1514),
])
pad6 = doc.addObject("PartDesign::Pad", "Pad005")
body.addObject(pad6)
pad6.Profile = sketch11
pad6.Length = 1

# Sketch on XY plane
sketch12 = doc.addObject("Sketcher::SketchObject", "Sketch011")
body.addObject(sketch12)
sketch12.AttachmentSupport = (doc.XY_Plane, [""])
sketch12.MapMode = "FlatFace"
sketch12.addGeometry([
    Part.Circle(V(-16.5752, 43.5198, 0), V(0, 0, 1), 3.5),
    Part.Circle(V(-16.5752, 43.5198, 0), V(0, 0, 1), 1.65),
], False)
sketch12.addConstraint([
    Sketcher.Constraint("Coincident", 1, 3, 0, 3),
    Sketcher.Constraint("Diameter", 0, 7.0),
    Sketcher.Constraint("Diameter", 1, 3.3),
    Sketcher.Constraint("DistanceX", 0, 3, -1, 1, 16.5752),
    Sketcher.Constraint("DistanceY", -1, 1, 0, 3, 43.5198),
])
pocket6 = doc.addObject("PartDesign::Pocket", "Pocket005")
body.addObject(pocket6)
pocket6.Profile = sketch12
pocket6.Length = 3
pocket6.Reversed = True

doc.recompute()
